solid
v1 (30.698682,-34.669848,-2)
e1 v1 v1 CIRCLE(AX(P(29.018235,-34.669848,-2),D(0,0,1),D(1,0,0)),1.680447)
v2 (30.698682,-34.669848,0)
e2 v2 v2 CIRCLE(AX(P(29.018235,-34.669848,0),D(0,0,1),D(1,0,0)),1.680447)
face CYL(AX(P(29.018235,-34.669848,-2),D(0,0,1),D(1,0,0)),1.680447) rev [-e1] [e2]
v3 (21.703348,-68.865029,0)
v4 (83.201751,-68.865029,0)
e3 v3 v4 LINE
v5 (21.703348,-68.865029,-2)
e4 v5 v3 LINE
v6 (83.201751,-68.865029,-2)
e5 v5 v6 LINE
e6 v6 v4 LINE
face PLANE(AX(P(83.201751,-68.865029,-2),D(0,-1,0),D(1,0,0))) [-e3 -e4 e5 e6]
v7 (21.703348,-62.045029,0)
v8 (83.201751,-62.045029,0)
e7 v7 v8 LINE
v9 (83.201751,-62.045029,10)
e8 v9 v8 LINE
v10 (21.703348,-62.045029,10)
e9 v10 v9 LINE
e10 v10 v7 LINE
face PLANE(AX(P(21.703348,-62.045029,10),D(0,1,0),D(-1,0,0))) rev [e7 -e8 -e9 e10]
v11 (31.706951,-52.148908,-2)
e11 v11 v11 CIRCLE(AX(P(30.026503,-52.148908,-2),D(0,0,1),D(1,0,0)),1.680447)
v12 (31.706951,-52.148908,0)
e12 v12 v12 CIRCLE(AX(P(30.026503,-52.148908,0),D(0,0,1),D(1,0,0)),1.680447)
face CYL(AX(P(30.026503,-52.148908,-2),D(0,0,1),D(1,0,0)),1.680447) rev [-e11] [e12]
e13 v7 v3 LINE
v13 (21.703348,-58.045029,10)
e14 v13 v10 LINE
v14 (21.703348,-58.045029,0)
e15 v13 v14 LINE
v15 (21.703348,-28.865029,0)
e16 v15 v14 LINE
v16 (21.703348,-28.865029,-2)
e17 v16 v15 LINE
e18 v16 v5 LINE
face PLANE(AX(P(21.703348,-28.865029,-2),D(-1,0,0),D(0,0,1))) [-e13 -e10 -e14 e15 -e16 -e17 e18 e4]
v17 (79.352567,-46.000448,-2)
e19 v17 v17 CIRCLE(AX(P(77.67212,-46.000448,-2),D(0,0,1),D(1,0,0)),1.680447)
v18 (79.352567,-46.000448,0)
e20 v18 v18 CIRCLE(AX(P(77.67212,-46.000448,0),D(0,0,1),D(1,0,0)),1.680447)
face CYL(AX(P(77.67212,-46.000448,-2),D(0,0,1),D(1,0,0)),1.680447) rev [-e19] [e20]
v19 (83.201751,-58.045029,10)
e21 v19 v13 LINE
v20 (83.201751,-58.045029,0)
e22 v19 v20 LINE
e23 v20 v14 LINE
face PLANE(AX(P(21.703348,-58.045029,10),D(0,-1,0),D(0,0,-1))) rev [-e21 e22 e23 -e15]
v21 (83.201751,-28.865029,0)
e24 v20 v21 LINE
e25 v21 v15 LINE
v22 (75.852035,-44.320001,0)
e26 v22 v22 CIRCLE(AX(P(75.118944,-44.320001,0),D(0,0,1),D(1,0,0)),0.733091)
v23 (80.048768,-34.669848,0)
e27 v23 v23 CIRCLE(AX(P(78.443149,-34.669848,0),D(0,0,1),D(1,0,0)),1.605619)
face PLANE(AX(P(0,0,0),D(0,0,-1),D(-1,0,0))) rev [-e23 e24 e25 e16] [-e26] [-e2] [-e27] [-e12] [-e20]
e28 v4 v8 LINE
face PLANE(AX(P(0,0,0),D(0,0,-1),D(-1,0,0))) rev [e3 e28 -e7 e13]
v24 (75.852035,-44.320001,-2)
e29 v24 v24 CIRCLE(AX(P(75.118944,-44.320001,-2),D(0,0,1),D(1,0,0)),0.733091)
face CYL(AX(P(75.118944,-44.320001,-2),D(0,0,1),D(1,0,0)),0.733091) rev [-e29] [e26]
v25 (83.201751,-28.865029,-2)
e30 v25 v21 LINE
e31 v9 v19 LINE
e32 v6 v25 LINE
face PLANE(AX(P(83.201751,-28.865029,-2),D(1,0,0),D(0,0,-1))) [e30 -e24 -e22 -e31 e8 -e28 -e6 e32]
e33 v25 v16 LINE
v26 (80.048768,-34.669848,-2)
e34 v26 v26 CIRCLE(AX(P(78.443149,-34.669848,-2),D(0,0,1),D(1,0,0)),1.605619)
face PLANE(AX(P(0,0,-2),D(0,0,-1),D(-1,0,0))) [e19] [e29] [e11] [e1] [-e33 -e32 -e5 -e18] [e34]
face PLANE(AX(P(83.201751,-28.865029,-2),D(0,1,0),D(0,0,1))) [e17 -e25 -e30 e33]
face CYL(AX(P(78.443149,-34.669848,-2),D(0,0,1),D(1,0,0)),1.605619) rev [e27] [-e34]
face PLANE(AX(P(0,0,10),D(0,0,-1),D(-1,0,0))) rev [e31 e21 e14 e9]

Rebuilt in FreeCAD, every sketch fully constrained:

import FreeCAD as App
import Part
import Sketcher

V = App.Vector

doc = App.newDocument("Part")
params = doc.addObject("Spreadsheet::Sheet", "Params")
for row, (alias, value) in enumerate([
    ("sketch1_height", "40 mm"),
    ("pad1_length", "2 mm"),
    ("sketch2_height", "4 mm"),
    ("pad2_length", "10 mm"),
], start=1):
    params.set(f"A{row}", alias)
    params.set(f"B{row}", "=" + value)
    params.setAlias(f"B{row}", alias)

body = doc.addObject("PartDesign::Body", "Body")

# Sketch on XY plane
sketch1 = body.newObject("Sketcher::SketchObject", "Sketch")
sketch1.AttachmentSupport = (doc.getObject("XY_Plane"), [""])
sketch1.MapMode = "FlatFace"
sketch1.addGeometry([
    Part.LineSegment(V(21.7, -28.9, 0), V(21.7, -68.9, 0)),  # 0
    Part.LineSegment(V(21.7, -68.9, 0), V(83.2, -68.9, 0)),  # 1
    Part.LineSegment(V(83.2, -68.9, 0), V(83.2, -28.9, 0)),  # 2
    Part.LineSegment(V(83.2, -28.9, 0), V(21.7, -28.9, 0)),  # 3
    Part.Circle(V(30, -52.1, 0), V(0, 0, 1), 1.7),  # 4
    Part.Circle(V(77.7, -46, 0), V(0, 0, 1), 1.7),  # 5
    Part.Circle(V(75.1, -44.3, 0), V(0, 0, 1), 0.7),  # 6
    Part.Circle(V(29, -34.7, 0), V(0, 0, 1), 1.7),  # 7
    Part.Circle(V(78.4, -34.7, 0), V(0, 0, 1), 1.6),  # 8
], False)
sketch1.addConstraint([
    Sketcher.Constraint("Coincident", 0, 2, 1, 1),
    Sketcher.Constraint("Coincident", 1, 2, 2, 1),
    Sketcher.Constraint("Coincident", 2, 2, 3, 1),
    Sketcher.Constraint("Coincident", 3, 2, 0, 1),
    Sketcher.Constraint("Vertical", 0),
    Sketcher.Constraint("Horizontal", 1),
    Sketcher.Constraint("Vertical", 2),
    Sketcher.Constraint("Horizontal", 3),
    Sketcher.Constraint("Equal", 4, 5),
    Sketcher.Constraint("Equal", 5, 7),
    Sketcher.Constraint("Horizontal", 7, 3, 8, 3),
    Sketcher.Constraint("DistanceY", 0, 2, 0, 1, 40.0),
    Sketcher.Constraint("DistanceY", 6, 3, -1, 1, 44.320001),
    Sketcher.Constraint("Diameter", 4, 3.360894),
    Sketcher.Constraint("Diameter", 6, 1.466182),
    Sketcher.Constraint("Diameter", 8, 3.211238),
    Sketcher.Constraint("DistanceY", 5, 3, 7, 3, 11.3306),
    Sketcher.Constraint("DistanceX", 0, 2, 8, 3, 56.739801),
    Sketcher.Constraint("DistanceX", 8, 3, 1, 2, 4.758602),
    Sketcher.Constraint("DistanceX", -1, 1, 5, 3, 77.67212),
    Sketcher.Constraint("DistanceY", 5, 3, -1, 1, 46.000448),
    Sketcher.Constraint("DistanceX", -1, 1, 8, 3, 78.443149),
    Sketcher.Constraint("DistanceY", 0, 2, -1, 1, 68.865029),
    Sketcher.Constraint("DistanceY", 4, 3, 5, 3, 6.148459),
    Sketcher.Constraint("DistanceX", 4, 3, 6, 3, 45.092441),
    Sketcher.Constraint("DistanceX", 7, 3, 4, 3, 1.008268),
    Sketcher.Constraint("DistanceX", -1, 1, 4, 3, 30.026503),
])
sketch1.setExpression("Constraints[11]", "Params.sketch1_height")
pad1 = body.newObject("PartDesign::Pad", "Pad")
pad1.Profile = sketch1
pad1.setExpression("Length", "Params.pad1_length")
pad1.Reversed = True

# Sketch on XY plane
sketch2 = body.newObject("Sketcher::SketchObject", "Sketch001")
sketch2.AttachmentSupport = (doc.getObject("XY_Plane"), [""])
sketch2.MapMode = "FlatFace"
sketch2.addGeometry([
    Part.LineSegment(V(21.7, -58, 0), V(21.7, -62, 0)),
    Part.LineSegment(V(21.7, -62, 0), V(83.2, -62, 0)),
    Part.LineSegment(V(83.2, -62, 0), V(83.2, -58, 0)),
    Part.LineSegment(V(83.2, -58, 0), V(21.7, -58, 0)),
], False)
sketch2.addConstraint([
    Sketcher.Constraint("Coincident", 0, 2, 1, 1),
    Sketcher.Constraint("Coincident", 1, 2, 2, 1),
    Sketcher.Constraint("Coincident", 2, 2, 3, 1),
    Sketcher.Constraint("Coincident", 3, 2, 0, 1),
    Sketcher.Constraint("Vertical", 0),
    Sketcher.Constraint("Horizontal", 1),
    Sketcher.Constraint("Vertical", 2),
    Sketcher.Constraint("Horizontal", 3),
    Sketcher.Constraint("DistanceY", 0, 2, 0, 1, 4.0),
    Sketcher.Constraint("DistanceX", 1, 1, 1, 2, 61.498403),
    Sketcher.Constraint("DistanceY", 0, 2, -1, 1, 62.045029),
    Sketcher.Constraint("DistanceX", -1, 1, 1, 2, 83.201751),
])
sketch2.setExpression("Constraints[8]", "Params.sketch2_height")
pad2 = body.newObject("PartDesign::Pad", "Pad001")
pad2.Profile = sketch2
pad2.setExpression("Length", "Params.pad2_length")

doc.recompute()
